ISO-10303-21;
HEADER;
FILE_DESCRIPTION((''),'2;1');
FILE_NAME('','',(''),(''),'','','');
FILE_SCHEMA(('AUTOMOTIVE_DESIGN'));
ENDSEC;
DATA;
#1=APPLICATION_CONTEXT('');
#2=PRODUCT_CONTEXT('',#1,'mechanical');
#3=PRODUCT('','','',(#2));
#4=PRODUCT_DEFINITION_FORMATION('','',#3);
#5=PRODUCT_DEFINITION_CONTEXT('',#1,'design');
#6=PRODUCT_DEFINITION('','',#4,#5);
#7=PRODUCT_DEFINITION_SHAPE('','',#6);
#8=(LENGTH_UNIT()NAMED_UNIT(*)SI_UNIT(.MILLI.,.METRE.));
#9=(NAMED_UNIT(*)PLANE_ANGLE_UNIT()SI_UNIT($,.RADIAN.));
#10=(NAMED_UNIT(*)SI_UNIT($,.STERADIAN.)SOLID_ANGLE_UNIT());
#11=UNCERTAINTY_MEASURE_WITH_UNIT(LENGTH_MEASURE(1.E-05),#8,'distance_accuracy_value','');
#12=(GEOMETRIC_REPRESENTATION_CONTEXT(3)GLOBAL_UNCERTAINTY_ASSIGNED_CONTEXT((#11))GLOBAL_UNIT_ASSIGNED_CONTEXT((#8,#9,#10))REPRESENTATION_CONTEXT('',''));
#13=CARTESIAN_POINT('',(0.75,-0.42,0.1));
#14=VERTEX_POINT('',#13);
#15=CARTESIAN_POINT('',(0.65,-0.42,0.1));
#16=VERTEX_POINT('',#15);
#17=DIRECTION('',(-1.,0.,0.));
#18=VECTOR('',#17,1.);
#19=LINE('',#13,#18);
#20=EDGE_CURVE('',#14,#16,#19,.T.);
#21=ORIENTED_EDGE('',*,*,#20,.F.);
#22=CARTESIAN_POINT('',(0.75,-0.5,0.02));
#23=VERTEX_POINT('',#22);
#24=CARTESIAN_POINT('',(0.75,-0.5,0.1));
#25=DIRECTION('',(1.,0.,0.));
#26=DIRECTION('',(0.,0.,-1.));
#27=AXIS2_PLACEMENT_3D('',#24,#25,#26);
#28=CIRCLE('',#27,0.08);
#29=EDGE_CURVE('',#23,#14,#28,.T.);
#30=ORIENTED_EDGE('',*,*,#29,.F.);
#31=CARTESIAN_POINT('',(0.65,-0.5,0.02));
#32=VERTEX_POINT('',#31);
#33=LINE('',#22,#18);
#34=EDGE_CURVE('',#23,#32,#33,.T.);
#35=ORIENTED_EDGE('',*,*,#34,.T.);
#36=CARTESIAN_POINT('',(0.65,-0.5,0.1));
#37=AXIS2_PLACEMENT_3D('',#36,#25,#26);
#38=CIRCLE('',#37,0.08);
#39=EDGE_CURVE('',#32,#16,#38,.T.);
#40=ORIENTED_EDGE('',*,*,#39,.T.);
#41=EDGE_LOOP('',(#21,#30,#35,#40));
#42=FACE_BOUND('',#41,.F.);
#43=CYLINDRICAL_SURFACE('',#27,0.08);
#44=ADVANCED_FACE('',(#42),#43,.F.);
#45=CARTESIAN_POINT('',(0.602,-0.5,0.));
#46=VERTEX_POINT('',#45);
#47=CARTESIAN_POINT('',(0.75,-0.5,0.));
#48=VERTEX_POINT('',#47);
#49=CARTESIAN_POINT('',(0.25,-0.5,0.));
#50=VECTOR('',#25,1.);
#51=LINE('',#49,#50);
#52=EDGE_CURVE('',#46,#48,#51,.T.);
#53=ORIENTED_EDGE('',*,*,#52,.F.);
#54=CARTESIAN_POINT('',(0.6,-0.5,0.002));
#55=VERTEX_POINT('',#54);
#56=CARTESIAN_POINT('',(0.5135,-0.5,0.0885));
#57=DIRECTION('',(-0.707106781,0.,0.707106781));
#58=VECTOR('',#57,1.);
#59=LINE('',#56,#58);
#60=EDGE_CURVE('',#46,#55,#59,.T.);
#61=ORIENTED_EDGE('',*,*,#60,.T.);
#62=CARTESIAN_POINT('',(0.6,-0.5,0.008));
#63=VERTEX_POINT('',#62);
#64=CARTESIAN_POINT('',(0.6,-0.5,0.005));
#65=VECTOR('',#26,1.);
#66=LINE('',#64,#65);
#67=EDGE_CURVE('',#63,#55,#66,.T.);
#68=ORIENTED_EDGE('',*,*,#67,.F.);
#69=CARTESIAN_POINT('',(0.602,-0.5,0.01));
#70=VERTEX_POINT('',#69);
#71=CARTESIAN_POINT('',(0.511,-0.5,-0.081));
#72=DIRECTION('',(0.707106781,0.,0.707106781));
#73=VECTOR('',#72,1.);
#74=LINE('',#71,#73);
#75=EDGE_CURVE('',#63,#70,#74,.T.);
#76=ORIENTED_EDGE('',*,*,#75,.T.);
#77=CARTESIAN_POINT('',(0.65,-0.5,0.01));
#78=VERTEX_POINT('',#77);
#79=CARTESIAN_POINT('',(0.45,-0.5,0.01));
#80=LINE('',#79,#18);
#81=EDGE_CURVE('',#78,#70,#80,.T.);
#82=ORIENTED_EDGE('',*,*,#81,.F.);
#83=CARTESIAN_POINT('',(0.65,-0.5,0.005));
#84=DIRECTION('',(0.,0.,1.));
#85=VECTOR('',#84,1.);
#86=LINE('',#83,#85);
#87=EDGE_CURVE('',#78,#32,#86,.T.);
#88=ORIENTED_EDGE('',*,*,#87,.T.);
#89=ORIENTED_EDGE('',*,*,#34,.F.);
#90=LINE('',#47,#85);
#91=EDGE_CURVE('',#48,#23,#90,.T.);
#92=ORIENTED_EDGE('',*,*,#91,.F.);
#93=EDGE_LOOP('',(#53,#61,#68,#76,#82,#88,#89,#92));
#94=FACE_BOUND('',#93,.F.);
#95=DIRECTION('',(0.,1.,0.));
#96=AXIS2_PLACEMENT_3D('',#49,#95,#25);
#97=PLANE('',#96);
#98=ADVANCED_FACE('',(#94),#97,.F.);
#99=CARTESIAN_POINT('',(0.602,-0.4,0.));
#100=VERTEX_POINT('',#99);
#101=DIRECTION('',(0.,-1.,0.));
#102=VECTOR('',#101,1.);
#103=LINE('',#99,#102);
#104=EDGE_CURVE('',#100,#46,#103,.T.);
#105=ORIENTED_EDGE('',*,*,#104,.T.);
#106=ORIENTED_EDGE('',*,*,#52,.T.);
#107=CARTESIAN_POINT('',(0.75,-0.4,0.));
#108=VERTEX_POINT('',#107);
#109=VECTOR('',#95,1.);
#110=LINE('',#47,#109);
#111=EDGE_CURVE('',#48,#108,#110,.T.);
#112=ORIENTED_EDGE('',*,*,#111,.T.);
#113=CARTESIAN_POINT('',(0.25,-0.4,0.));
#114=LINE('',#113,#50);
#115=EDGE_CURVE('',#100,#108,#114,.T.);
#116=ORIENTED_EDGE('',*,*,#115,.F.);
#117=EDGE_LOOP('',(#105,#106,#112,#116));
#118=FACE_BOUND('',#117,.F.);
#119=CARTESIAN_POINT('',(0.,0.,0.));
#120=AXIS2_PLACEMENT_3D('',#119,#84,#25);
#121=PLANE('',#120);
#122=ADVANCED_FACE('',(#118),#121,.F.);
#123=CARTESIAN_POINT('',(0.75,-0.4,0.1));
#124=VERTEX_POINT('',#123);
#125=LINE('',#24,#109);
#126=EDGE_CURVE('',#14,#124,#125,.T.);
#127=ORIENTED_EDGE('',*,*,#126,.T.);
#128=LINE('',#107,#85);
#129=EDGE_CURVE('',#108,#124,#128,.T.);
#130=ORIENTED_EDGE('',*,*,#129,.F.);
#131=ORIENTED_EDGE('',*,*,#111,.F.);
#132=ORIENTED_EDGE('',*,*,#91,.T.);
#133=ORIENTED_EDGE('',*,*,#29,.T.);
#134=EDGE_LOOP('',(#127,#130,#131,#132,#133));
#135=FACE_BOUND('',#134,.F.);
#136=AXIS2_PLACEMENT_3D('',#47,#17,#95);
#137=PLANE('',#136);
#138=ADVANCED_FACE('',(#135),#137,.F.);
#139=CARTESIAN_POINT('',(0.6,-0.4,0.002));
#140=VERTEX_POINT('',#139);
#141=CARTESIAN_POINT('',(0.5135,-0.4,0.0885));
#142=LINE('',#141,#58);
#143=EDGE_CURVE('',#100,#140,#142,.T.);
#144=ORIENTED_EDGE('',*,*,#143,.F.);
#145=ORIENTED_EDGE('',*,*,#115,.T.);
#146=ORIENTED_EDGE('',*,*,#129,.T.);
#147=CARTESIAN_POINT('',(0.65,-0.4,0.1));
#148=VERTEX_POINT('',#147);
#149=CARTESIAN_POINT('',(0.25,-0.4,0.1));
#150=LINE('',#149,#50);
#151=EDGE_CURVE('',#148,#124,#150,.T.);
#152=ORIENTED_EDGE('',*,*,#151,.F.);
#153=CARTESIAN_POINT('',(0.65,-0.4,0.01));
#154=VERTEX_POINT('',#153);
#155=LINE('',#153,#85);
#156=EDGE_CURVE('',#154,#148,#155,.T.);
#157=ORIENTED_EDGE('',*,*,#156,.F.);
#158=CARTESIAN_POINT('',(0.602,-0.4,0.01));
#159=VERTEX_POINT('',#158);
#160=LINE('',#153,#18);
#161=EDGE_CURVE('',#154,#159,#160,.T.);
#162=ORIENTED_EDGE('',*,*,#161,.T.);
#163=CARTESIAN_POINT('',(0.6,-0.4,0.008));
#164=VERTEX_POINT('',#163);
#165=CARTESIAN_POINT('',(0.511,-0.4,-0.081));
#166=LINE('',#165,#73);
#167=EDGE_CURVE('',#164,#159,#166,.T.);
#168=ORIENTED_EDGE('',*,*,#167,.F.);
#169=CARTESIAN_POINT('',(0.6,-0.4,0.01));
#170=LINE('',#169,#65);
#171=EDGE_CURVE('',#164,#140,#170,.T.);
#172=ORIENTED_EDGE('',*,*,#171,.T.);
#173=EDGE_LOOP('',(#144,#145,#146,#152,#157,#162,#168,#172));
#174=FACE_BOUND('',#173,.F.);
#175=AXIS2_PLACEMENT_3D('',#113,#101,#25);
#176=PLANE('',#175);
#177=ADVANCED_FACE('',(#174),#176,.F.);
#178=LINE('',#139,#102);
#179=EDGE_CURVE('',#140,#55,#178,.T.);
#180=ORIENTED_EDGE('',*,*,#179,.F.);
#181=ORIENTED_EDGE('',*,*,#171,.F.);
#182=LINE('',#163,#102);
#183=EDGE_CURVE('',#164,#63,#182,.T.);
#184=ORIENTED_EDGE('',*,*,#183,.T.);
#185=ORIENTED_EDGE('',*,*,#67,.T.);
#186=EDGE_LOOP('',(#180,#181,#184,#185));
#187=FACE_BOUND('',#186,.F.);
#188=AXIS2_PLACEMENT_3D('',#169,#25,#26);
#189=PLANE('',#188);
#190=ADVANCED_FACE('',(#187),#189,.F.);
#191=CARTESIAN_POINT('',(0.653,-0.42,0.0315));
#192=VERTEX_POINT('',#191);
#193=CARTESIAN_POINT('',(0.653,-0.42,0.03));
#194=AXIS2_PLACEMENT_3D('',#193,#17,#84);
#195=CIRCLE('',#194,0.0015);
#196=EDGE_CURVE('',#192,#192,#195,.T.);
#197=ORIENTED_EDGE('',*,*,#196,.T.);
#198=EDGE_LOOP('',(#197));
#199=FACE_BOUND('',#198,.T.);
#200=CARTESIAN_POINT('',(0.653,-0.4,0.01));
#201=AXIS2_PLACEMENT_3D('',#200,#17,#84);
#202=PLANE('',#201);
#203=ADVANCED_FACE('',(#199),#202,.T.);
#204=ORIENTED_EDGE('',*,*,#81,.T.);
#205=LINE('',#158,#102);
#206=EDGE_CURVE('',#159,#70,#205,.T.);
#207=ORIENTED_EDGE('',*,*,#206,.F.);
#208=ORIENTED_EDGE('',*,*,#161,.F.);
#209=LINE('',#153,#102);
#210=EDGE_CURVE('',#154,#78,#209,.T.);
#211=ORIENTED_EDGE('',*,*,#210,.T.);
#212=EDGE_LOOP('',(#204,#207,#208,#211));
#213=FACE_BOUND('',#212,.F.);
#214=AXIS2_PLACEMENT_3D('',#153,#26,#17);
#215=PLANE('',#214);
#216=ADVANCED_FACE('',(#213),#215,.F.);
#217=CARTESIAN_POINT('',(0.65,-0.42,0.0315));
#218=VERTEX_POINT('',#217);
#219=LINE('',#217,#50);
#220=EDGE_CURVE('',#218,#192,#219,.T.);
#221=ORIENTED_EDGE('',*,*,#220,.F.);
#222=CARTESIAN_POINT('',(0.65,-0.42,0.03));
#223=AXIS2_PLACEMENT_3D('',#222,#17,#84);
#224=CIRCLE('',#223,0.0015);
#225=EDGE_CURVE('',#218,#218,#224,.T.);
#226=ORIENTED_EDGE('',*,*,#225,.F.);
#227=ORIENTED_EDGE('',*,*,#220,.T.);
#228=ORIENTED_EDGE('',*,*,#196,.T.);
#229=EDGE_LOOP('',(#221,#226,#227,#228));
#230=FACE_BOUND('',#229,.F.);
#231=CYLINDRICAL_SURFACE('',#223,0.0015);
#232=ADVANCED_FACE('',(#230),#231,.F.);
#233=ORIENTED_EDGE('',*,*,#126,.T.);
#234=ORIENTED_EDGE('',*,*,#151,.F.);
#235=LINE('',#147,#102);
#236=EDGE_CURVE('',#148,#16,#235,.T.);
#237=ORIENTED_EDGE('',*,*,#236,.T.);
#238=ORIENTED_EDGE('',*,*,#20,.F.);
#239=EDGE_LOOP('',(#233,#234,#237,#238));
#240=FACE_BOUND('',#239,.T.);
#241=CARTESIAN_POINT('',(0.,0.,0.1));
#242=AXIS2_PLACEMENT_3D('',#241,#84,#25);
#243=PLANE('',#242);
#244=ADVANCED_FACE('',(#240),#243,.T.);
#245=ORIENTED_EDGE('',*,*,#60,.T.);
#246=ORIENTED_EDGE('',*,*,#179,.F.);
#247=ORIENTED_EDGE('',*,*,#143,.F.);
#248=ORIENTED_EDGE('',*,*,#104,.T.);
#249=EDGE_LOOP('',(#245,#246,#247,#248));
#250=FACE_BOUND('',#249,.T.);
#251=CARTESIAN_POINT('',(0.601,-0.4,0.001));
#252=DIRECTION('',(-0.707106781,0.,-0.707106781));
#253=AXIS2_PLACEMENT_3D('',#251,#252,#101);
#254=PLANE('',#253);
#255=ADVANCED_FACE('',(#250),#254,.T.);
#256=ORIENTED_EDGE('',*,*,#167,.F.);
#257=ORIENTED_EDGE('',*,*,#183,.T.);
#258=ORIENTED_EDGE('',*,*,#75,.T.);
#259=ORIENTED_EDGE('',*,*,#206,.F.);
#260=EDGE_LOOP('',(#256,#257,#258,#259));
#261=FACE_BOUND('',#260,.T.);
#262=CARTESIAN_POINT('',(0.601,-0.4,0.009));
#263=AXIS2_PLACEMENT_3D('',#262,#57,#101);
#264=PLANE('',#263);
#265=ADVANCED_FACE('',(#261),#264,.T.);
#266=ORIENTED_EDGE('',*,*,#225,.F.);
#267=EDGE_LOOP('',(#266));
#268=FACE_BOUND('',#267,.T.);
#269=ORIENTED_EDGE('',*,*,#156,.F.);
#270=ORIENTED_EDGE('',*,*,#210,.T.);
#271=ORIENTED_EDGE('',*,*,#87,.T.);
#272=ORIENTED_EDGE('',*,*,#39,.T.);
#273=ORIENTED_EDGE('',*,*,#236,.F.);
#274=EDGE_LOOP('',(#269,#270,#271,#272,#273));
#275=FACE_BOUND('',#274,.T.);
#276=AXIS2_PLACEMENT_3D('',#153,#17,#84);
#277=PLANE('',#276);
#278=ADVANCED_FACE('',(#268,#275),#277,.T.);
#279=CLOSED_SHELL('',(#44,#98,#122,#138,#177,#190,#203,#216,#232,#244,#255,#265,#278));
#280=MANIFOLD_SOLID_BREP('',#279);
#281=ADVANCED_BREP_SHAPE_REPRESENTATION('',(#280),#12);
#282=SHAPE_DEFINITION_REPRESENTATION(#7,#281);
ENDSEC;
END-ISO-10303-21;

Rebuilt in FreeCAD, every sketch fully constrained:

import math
import FreeCAD as App
import Part
import Sketcher
from FreeCAD import Vector


def edges_at(feature, points):
    """Names of the edges that pass closest to the given points."""
    edges = feature.Shape.Edges
    near = lambda p: min(range(len(edges)), key=lambda i: edges[i].distToShape(Part.Vertex(*p))[0])
    return sorted({f"Edge{near(p) + 1}" for p in points})

doc = App.newDocument("Part")
body = doc.addObject("PartDesign::Body", "Body")

sketch1 = body.newObject("Sketcher::SketchObject", "Sketch")
sketch1.AttachmentSupport = (doc.getObject("XY_Plane"), [""])
sketch1.MapMode = "FlatFace"
sketch1.addGeometry(Part.LineSegment(Vector(0.2, 0.5, 0), Vector(0.2, -0.5, 0)), False)
sketch1.addGeometry(Part.LineSegment(Vector(0.2, -0.5, 0), Vector(0.8, -0.5, 0)), False)
sketch1.addGeometry(Part.LineSegment(Vector(0.8, -0.5, 0), Vector(0.8, 0.5, 0)), False)
sketch1.addGeometry(Part.LineSegment(Vector(0.8, 0.5, 0), Vector(0.2, 0.5, 0)), False)
sketch1.addConstraint(Sketcher.Constraint("Coincident", 0, 2, 1, 1))
sketch1.addConstraint(Sketcher.Constraint("Coincident", 1, 2, 2, 1))
sketch1.addConstraint(Sketcher.Constraint("Coincident", 2, 2, 3, 1))
sketch1.addConstraint(Sketcher.Constraint("Coincident", 3, 2, 0, 1))
sketch1.addConstraint(Sketcher.Constraint("Vertical", 0))
sketch1.addConstraint(Sketcher.Constraint("Horizontal", 1))
sketch1.addConstraint(Sketcher.Constraint("Vertical", 2))
sketch1.addConstraint(Sketcher.Constraint("Horizontal", 3))
sketch1.addConstraint(Sketcher.Constraint("DistanceY", 0, 2, 0, 1, 1.0))
sketch1.addConstraint(Sketcher.Constraint("DistanceX", 1, 1, 1, 2, 0.5))
sketch1.addConstraint(Sketcher.Constraint("DistanceY", 0, 2, -1, 1, 0.5))
sketch1.addConstraint(Sketcher.Constraint("DistanceX", -1, 1, 0, 2, 0.25))
pad1 = body.newObject("PartDesign::Pad", "Pad")
pad1.Profile = sketch1
pad1.Length = 0.1

sketch2 = body.newObject("Sketcher::SketchObject", "Sketch001")
sketch2.AttachmentSupport = (doc.getObject("YZ_Plane"), [""])
sketch2.MapMode = "FlatFace"
sketch2.AttachmentOffset = App.Placement(Vector(0, 0, 0.75), App.Rotation())
sketch2.addGeometry(Part.LineSegment(Vector(-0.5, 0.1, 0), Vector(-0.5, 0.02, 0)), False)
sketch2.addGeometry(Part.ArcOfCircle(Part.Circle(Vector(-0.5, 0.1, 0), Vector(0, 0, 1), 0.08), math.radians(-90), math.radians(0)), False)
sketch2.addGeometry(Part.LineSegment(Vector(-0.42, 0.1, 0), Vector(-0.5, 0.1, 0)), False)
sketch2.addGeometry(Part.LineSegment(Vector(0.5, 0.1, 0), Vector(0.42, 0.1, 0)), False)
sketch2.addGeometry(Part.ArcOfCircle(Part.Circle(Vector(0.5, 0.1, 0), Vector(0, 0, 1), 0.08), math.radians(180), math.radians(270)), False)
sketch2.addGeometry(Part.LineSegment(Vector(0.5, 0.02, 0), Vector(0.5, 0.1, 0)), False)
sketch2.addConstraint(Sketcher.Constraint("Coincident", 0, 2, 1, 1))
sketch2.addConstraint(Sketcher.Constraint("Coincident", 1, 2, 2, 1))
sketch2.addConstraint(Sketcher.Constraint("Coincident", 2, 2, 0, 1))
sketch2.addConstraint(Sketcher.Constraint("Coincident", 3, 2, 4, 1))
sketch2.addConstraint(Sketcher.Constraint("Coincident", 4, 2, 5, 1))
sketch2.addConstraint(Sketcher.Constraint("Coincident", 5, 2, 3, 1))
sketch2.addConstraint(Sketcher.Constraint("Vertical", 0))
sketch2.addConstraint(Sketcher.Constraint("Horizontal", 2))
sketch2.addConstraint(Sketcher.Constraint("Horizontal", 3))
sketch2.addConstraint(Sketcher.Constraint("Vertical", 5))
sketch2.addConstraint(Sketcher.Constraint("Coincident", 2, 2, 1, 3))
sketch2.addConstraint(Sketcher.Constraint("Coincident", 5, 2, 4, 3))
sketch2.addConstraint(Sketcher.Constraint("Equal", 1, 4))
sketch2.addConstraint(Sketcher.Constraint("Symmetric", 1, 3, 4, 3, -2))
sketch2.addConstraint(Sketcher.Constraint("DistanceX", 1, 2, -1, 1, 0.42))
sketch2.addConstraint(Sketcher.Constraint("Radius", 1, 0.08))
sketch2.addConstraint(Sketcher.Constraint("DistanceY", -1, 1, 1, 3, 0.1))
pocket1 = body.newObject("PartDesign::Pocket", "Pocket")
pocket1.Profile = sketch2
pocket1.Length = 0.5

sketch3 = body.newObject("Sketcher::SketchObject", "Sketch002")
sketch3.AttachmentSupport = (doc.getObject("XZ_Plane"), [""])
sketch3.MapMode = "FlatFace"
sketch3.AttachmentOffset = App.Placement(Vector(0, 0, 0.4), App.Rotation())
sketch3.addGeometry(Part.LineSegment(Vector(0.25, 0.1, 0), Vector(0.25, 0, 0)), False)
sketch3.addGeometry(Part.LineSegment(Vector(0.25, 0, 0), Vector(0.75, 0, 0)), False)
sketch3.addGeometry(Part.LineSegment(Vector(0.75, 0, 0), Vector(0.75, 0.1, 0)), False)
sketch3.addGeometry(Part.LineSegment(Vector(0.75, 0.1, 0), Vector(0.25, 0.1, 0)), False)
sketch3.addConstraint(Sketcher.Constraint("Coincident", 0, 2, 1, 1))
sketch3.addConstraint(Sketcher.Constraint("Coincident", 1, 2, 2, 1))
sketch3.addConstraint(Sketcher.Constraint("Coincident", 2, 2, 3, 1))
sketch3.addConstraint(Sketcher.Constraint("Coincident", 3, 2, 0, 1))
sketch3.addConstraint(Sketcher.Constraint("Vertical", 0))
sketch3.addConstraint(Sketcher.Constraint("Horizontal", 1))
sketch3.addConstraint(Sketcher.Constraint("Vertical", 2))
sketch3.addConstraint(Sketcher.Constraint("Horizontal", 3))
sketch3.addConstraint(Sketcher.Constraint("PointOnObject", 0, 2, -1))
sketch3.addConstraint(Sketcher.Constraint("DistanceX", 1, 1, 1, 2, 0.5))
sketch3.addConstraint(Sketcher.Constraint("DistanceY", 0, 2, 0, 1, 0.1))
sketch3.addConstraint(Sketcher.Constraint("DistanceX", -1, 1, 0, 2, 0.25))
pocket2 = body.newObject("PartDesign::Pocket", "Pocket001")
pocket2.Profile = sketch3
pocket2.Length = 10

sketch4 = body.newObject("Sketcher::SketchObject", "Sketch003")
sketch4.AttachmentSupport = (doc.getObject("XZ_Plane"), [""])
sketch4.MapMode = "FlatFace"
sketch4.AttachmentOffset = App.Placement(Vector(0, 0, 0.4), App.Rotation())
sketch4.addGeometry(Part.LineSegment(Vector(0.6, 0.01, 0), Vector(0.6, 0, 0)), False)
sketch4.addGeometry(Part.LineSegment(Vector(0.6, 0, 0), Vector(0.25, 0, 0)), False)
sketch4.addGeometry(Part.LineSegment(Vector(0.25, 0, 0), Vector(0.25, 0.1, 0)), False)
sketch4.addGeometry(Part.LineSegment(Vector(0.25, 0.1, 0), Vector(0.65, 0.1, 0)), False)
sketch4.addGeometry(Part.LineSegment(Vector(0.65, 0.1, 0), Vector(0.65, 0.01, 0)), False)
sketch4.addGeometry(Part.LineSegment(Vector(0.65, 0.01, 0), Vector(0.6, 0.01, 0)), False)
sketch4.addConstraint(Sketcher.Constraint("Coincident", 0, 2, 1, 1))
sketch4.addConstraint(Sketcher.Constraint("Coincident", 1, 2, 2, 1))
sketch4.addConstraint(Sketcher.Constraint("Coincident", 2, 2, 3, 1))
sketch4.addConstraint(Sketcher.Constraint("Coincident", 3, 2, 4, 1))
sketch4.addConstraint(Sketcher.Constraint("Coincident", 4, 2, 5, 1))
sketch4.addConstraint(Sketcher.Constraint("Coincident", 5, 2, 0, 1))
sketch4.addConstraint(Sketcher.Constraint("Vertical", 0))
sketch4.addConstraint(Sketcher.Constraint("Horizontal", 1))
sketch4.addConstraint(Sketcher.Constraint("Vertical", 2))
sketch4.addConstraint(Sketcher.Constraint("Horizontal", 3))
sketch4.addConstraint(Sketcher.Constraint("Vertical", 4))
sketch4.addConstraint(Sketcher.Constraint("Horizontal", 5))
sketch4.addConstraint(Sketcher.Constraint("PointOnObject", 0, 2, -1))
sketch4.addConstraint(Sketcher.Constraint("DistanceX", 5, 2, 5, 1, 0.05))
sketch4.addConstraint(Sketcher.Constraint("DistanceY", 0, 2, 0, 1, 0.01))
sketch4.addConstraint(Sketcher.Constraint("DistanceX", 3, 1, 3, 2, 0.4))
sketch4.addConstraint(Sketcher.Constraint("DistanceY", 2, 1, 2, 2, 0.1))
sketch4.addConstraint(Sketcher.Constraint("DistanceX", -1, 1, 0, 2, 0.6))
pocket3 = body.newObject("PartDesign::Pocket", "Pocket002")
pocket3.Profile = sketch4
pocket3.Length = 10
pocket3.Reversed = True
doc.recompute()

chamfer = body.newObject("PartDesign::Chamfer", "Chamfer")
chamfer.Base = (pocket3, edges_at(pocket3, [(0.6, -0.45, 0), (0.6, -0.45, 0.01)]))
chamfer.Size = 0.002

sketch5 = body.newObject("Sketcher::SketchObject", "Sketch004")
sketch5.AttachmentSupport = (doc.getObject("YZ_Plane"), [""])
sketch5.MapMode = "FlatFace"
sketch5.AttachmentOffset = App.Placement(Vector(0, 0, 0.65), App.Rotation())
sketch5.addGeometry(Part.Circle(Vector(-0.42, 0.03, 0), Vector(0, 0, 1), 0.0015), False)
sketch5.addConstraint(Sketcher.Constraint("Diameter", 0, 0.003))
sketch5.addConstraint(Sketcher.Constraint("DistanceX", 0, 3, -1, 1, 0.42))
sketch5.addConstraint(Sketcher.Constraint("DistanceY", -1, 1, 0, 3, 0.03))
pocket4 = body.newObject("PartDesign::Pocket", "Pocket003")
pocket4.Profile = sketch5
pocket4.Length = 0.003
pocket4.Reversed = True

doc.recompute()
